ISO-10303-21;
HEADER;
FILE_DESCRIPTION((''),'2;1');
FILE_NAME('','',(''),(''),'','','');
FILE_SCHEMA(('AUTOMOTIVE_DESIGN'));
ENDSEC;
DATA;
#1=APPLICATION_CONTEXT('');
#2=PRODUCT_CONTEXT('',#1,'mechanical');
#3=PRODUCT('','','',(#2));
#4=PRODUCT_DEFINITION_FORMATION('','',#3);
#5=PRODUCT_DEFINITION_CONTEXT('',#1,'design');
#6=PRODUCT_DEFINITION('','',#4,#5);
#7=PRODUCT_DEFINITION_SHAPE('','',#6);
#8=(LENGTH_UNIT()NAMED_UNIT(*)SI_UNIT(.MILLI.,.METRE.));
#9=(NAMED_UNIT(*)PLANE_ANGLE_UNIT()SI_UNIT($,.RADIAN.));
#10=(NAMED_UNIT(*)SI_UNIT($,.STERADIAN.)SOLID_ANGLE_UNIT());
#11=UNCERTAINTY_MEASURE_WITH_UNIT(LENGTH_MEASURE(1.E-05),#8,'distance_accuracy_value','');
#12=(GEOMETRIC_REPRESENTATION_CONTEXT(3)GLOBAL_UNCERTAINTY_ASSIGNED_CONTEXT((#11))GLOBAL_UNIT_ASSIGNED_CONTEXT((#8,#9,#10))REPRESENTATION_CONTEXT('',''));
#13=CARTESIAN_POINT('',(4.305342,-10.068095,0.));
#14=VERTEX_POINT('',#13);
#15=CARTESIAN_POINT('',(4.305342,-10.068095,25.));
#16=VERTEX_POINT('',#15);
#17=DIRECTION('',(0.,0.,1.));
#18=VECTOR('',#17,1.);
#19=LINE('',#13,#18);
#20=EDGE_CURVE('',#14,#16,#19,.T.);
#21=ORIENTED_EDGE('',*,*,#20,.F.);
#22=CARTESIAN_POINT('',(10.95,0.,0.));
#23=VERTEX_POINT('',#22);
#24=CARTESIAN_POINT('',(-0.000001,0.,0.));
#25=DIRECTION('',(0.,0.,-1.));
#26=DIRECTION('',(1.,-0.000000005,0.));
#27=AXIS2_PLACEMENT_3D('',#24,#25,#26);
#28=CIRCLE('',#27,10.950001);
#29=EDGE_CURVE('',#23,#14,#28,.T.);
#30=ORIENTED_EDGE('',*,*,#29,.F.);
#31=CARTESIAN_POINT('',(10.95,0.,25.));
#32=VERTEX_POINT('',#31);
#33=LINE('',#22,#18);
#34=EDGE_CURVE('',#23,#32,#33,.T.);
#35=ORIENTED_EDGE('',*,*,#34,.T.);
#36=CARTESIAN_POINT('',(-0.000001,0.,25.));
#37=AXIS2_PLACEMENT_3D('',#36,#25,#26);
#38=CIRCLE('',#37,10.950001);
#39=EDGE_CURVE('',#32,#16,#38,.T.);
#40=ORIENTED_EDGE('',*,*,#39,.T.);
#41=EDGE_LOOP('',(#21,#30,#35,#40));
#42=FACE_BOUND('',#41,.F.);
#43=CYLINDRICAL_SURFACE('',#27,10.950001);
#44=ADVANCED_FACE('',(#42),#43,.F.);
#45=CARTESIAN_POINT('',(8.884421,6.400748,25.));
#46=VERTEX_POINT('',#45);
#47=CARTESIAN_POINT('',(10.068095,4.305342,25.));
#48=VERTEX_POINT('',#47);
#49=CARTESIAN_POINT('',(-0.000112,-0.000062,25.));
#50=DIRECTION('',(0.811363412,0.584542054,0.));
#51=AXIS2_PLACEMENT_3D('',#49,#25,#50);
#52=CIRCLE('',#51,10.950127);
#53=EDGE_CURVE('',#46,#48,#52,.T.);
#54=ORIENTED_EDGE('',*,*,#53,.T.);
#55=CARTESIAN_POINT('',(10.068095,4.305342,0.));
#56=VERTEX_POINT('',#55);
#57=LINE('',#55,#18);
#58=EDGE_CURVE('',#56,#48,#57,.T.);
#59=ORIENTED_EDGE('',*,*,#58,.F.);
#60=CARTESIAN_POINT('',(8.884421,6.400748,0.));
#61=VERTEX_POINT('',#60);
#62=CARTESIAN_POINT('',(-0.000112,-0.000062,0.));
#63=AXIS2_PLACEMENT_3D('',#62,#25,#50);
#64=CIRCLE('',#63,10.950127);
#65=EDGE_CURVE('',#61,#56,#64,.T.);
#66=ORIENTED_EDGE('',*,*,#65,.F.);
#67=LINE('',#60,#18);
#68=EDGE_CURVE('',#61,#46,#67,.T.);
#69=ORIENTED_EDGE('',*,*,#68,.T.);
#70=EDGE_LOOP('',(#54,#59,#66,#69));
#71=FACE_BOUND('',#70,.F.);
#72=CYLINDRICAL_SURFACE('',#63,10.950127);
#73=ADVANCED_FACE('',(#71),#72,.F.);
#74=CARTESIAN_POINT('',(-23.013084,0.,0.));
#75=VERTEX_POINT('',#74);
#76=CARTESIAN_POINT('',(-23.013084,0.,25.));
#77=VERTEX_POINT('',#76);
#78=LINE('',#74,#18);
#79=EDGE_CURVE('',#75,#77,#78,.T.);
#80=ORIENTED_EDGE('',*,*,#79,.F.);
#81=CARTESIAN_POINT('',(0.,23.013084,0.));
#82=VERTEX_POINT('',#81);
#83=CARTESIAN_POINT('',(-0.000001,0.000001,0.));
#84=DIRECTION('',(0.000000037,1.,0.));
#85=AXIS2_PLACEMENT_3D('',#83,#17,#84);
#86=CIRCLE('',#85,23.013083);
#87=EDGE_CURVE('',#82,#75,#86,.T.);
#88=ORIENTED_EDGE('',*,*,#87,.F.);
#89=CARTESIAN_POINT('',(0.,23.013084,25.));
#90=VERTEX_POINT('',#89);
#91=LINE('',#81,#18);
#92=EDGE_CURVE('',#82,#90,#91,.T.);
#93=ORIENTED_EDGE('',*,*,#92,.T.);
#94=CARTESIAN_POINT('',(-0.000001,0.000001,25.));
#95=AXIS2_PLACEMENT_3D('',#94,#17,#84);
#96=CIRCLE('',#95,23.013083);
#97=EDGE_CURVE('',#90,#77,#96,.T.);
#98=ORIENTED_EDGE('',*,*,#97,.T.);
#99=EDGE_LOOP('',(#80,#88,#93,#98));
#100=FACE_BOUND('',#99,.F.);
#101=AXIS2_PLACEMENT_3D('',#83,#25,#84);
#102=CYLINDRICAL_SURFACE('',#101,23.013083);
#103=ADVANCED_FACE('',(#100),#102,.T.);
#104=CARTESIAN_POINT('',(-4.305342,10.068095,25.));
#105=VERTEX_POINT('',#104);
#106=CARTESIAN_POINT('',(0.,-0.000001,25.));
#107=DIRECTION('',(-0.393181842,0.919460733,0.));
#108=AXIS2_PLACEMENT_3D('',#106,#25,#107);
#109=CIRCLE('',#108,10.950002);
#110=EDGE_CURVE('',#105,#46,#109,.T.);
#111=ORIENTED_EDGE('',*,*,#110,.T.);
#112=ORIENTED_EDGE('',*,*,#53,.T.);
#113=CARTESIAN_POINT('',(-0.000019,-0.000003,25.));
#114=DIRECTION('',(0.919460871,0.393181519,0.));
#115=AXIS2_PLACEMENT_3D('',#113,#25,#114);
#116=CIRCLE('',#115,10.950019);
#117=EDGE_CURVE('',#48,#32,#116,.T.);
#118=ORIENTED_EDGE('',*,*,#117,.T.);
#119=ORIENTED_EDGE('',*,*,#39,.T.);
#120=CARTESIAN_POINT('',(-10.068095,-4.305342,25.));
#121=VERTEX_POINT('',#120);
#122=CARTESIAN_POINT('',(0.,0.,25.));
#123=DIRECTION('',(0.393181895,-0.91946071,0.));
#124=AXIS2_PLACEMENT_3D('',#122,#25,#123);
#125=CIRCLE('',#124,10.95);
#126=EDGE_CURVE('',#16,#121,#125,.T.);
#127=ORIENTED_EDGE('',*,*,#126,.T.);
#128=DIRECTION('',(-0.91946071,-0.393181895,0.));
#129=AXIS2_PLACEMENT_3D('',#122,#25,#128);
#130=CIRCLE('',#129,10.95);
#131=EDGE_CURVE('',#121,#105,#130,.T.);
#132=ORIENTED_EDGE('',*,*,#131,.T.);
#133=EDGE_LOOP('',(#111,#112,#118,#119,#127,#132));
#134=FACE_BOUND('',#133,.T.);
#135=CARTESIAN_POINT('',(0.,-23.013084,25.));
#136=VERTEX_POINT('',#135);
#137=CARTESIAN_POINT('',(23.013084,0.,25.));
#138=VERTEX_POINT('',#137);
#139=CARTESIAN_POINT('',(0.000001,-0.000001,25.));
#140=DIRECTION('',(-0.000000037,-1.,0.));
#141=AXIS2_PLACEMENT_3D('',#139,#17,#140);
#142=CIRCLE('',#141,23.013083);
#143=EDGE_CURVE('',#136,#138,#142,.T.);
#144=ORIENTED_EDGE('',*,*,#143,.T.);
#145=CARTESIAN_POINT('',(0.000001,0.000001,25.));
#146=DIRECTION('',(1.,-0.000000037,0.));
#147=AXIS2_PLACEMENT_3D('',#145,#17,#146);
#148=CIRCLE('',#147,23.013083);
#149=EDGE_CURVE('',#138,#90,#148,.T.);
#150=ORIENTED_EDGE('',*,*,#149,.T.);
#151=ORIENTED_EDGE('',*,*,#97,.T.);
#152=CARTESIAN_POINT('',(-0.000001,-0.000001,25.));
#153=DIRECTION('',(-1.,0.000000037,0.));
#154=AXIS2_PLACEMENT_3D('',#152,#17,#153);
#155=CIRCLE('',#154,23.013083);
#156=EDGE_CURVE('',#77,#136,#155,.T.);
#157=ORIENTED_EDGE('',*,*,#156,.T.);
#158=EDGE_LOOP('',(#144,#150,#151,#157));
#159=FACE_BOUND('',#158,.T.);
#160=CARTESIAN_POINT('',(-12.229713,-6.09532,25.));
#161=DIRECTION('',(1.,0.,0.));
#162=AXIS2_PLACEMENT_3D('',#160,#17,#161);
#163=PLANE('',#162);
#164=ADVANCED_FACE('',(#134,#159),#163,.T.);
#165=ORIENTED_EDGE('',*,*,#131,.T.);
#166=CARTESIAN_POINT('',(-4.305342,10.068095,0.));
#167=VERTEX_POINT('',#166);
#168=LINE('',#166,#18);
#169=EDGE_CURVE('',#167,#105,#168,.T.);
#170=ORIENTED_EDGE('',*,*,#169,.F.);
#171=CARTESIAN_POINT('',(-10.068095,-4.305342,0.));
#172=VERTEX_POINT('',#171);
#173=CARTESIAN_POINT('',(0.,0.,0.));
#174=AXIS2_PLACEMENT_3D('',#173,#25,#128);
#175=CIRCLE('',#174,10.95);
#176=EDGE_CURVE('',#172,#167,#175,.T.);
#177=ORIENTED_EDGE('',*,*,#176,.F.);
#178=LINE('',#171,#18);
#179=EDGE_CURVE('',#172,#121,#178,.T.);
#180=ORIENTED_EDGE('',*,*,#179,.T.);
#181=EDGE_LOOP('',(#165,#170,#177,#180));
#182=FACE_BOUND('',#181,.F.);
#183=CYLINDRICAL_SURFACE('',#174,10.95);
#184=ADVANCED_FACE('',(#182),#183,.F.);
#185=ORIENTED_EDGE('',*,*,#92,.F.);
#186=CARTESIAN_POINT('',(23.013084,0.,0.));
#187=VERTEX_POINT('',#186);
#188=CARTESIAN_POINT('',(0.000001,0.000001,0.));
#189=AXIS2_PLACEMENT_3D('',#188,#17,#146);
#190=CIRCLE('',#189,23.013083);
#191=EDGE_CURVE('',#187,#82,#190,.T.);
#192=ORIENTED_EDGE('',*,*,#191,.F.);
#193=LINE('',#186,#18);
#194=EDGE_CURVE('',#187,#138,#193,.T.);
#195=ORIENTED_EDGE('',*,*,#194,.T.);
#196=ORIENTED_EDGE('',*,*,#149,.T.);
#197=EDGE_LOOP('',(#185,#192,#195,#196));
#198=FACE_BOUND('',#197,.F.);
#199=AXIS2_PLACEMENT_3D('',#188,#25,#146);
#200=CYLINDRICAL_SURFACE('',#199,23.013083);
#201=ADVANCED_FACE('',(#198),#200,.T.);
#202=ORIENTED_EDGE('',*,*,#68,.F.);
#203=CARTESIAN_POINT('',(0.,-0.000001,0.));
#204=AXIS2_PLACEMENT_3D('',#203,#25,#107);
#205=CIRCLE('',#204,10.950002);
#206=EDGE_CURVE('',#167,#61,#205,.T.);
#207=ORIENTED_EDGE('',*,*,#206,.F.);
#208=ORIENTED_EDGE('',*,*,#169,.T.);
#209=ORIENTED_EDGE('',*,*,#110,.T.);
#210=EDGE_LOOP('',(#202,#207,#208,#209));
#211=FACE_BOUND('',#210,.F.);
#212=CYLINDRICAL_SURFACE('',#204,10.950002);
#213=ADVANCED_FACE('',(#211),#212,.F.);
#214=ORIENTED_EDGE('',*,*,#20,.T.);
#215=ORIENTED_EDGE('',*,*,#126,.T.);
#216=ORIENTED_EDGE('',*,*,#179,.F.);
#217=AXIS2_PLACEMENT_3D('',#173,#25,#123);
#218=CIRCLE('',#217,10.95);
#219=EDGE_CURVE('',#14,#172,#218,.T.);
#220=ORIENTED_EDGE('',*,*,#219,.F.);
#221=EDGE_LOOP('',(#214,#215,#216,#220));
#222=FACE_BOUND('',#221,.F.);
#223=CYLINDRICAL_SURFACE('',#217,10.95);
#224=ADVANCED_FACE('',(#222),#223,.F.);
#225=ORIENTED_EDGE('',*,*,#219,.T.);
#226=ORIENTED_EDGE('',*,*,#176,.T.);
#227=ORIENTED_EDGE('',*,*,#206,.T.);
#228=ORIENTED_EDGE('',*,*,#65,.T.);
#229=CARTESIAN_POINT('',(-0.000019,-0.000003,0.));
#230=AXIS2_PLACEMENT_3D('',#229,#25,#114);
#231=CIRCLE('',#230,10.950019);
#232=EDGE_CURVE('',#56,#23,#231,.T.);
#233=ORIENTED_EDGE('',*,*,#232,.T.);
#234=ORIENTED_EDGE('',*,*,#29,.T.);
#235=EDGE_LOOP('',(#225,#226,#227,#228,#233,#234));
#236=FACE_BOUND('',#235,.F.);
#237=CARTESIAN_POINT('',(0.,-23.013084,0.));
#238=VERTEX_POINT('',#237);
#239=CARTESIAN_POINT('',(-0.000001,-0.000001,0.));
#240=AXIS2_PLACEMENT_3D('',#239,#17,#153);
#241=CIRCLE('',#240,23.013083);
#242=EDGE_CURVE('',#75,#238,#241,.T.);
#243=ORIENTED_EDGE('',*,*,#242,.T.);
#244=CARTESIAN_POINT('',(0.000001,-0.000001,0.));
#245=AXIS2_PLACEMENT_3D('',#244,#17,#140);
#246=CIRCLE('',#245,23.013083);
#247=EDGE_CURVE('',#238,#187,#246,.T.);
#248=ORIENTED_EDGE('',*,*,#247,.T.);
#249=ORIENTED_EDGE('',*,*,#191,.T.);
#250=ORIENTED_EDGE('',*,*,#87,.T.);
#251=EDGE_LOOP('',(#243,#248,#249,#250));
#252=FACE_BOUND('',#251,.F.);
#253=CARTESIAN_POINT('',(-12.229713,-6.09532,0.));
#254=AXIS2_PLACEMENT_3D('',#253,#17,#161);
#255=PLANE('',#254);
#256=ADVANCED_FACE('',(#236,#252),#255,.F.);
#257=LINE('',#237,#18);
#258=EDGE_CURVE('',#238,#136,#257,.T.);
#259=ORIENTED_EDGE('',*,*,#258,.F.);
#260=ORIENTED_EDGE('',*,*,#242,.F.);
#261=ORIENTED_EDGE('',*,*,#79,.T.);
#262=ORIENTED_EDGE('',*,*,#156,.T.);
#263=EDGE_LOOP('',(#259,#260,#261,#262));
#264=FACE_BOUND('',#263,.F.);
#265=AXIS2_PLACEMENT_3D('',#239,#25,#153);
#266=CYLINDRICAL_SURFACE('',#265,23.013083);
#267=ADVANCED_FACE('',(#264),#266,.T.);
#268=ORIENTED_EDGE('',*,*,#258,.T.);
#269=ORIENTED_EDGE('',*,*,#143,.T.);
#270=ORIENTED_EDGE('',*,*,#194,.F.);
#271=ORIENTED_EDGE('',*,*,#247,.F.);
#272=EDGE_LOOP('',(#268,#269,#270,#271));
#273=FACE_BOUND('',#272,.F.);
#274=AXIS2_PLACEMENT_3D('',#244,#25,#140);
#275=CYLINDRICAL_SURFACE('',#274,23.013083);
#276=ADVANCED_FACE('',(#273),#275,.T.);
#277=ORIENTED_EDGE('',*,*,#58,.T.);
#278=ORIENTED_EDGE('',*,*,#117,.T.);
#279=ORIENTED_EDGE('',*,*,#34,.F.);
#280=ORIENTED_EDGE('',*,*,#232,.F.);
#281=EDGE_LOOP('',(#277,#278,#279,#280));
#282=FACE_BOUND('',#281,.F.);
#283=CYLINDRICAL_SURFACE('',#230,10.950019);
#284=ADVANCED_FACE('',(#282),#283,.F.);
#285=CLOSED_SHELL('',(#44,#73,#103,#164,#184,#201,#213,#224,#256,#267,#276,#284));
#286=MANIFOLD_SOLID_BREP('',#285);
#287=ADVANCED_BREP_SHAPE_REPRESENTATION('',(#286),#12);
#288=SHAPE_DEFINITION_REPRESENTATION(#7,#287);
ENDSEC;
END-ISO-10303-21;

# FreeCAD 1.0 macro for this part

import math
import FreeCAD as App
import Part
import Sketcher
from FreeCAD import Vector
Q = App.Units.Quantity

doc = App.newDocument("Part")
body = doc.addObject("PartDesign::Body", "Body")

# Sketch on XY plane
sketch1 = body.newObject("Sketcher::SketchObject", "Sketch")
sketch1.AttachmentSupport = (doc.getObject("XY_Plane"), [""])
sketch1.MapMode = "FlatFace"
sketch1.addGeometry(Part.ArcOfCircle(Part.Circle(Vector(-0.000001, 0.000001, 0), Vector(0, 0, 1), 23.013083), math.radians(89.999998), math.radians(180.000002)), False)
sketch1.addGeometry(Part.ArcOfCircle(Part.Circle(Vector(-0.000001, -0.000001, 0), Vector(0, 0, 1), 23.013083), math.radians(179.999998), math.radians(270.000002)), False)
sketch1.addGeometry(Part.ArcOfCircle(Part.Circle(Vector(0.000001, -0.000001, 0), Vector(0, 0, 1), 23.013083), math.radians(-90.000002), math.radians(0.000002)), False)
sketch1.addGeometry(Part.ArcOfCircle(Part.Circle(Vector(0.000001, 0.000001, 0), Vector(0, 0, 1), 23.013083), math.radians(-0.000002), math.radians(90.000002)), False)
sketch1.addGeometry(Part.ArcOfCircle(Part.Circle(Vector(0, 0, 0), Vector(0, 0, 1), 10.95), math.radians(113.152633), math.radians(203.152632)), False)
sketch1.addGeometry(Part.ArcOfCircle(Part.Circle(Vector(0, -0.000001, 0), Vector(0, 0, 1), 10.950002), math.radians(35.770729), math.radians(113.152628)), False)
sketch1.addGeometry(Part.ArcOfCircle(Part.Circle(Vector(-0.000112, -0.000062, 0), Vector(0, 0, 1), 10.950127), math.radians(23.152701), math.radians(35.770645)), False)
sketch1.addGeometry(Part.ArcOfCircle(Part.Circle(Vector(-0.000019, -0.000003, 0), Vector(0, 0, 1), 10.950019), math.radians(0.000016), math.radians(23.152608)), False)
sketch1.addGeometry(Part.ArcOfCircle(Part.Circle(Vector(-0.000001, 0, 0), Vector(0, 0, 1), 10.950001), math.radians(-66.847365), math.radians(0)), False)
sketch1.addGeometry(Part.ArcOfCircle(Part.Circle(Vector(0, 0, 0), Vector(0, 0, 1), 10.95), math.radians(-156.847367), math.radians(-66.847368)), False)
sketch1.addConstraint(Sketcher.Constraint("Coincident", 0, 2, 1, 1))
sketch1.addConstraint(Sketcher.Constraint("Coincident", 1, 2, 2, 1))
sketch1.addConstraint(Sketcher.Constraint("Coincident", 2, 2, 3, 1))
sketch1.addConstraint(Sketcher.Constraint("Coincident", 3, 2, 0, 1))
sketch1.addConstraint(Sketcher.Constraint("Coincident", 4, 1, 5, 2))
sketch1.addConstraint(Sketcher.Constraint("Coincident", 5, 1, 6, 2))
sketch1.addConstraint(Sketcher.Constraint("Coincident", 6, 1, 7, 2))
sketch1.addConstraint(Sketcher.Constraint("Coincident", 7, 1, 8, 2))
sketch1.addConstraint(Sketcher.Constraint("Coincident", 8, 1, 9, 2))
sketch1.addConstraint(Sketcher.Constraint("Coincident", 9, 1, 4, 2))
sketch1.addConstraint(Sketcher.Constraint("Coincident", 0, 3, -1, 1))
sketch1.addConstraint(Sketcher.Constraint("Coincident", 1, 3, -1, 1))
sketch1.addConstraint(Sketcher.Constraint("Coincident", 2, 3, -1, 1))
sketch1.addConstraint(Sketcher.Constraint("Coincident", 4, 3, -1, 1))
sketch1.addConstraint(Sketcher.Constraint("Coincident", 5, 3, -1, 1))
sketch1.addConstraint(Sketcher.Constraint("Coincident", 8, 3, -1, 1))
sketch1.addConstraint(Sketcher.Constraint("Coincident", 9, 3, -1, 1))
sketch1.addConstraint(Sketcher.Constraint("PointOnObject", 0, 2, -1))
sketch1.addConstraint(Sketcher.Constraint("PointOnObject", 1, 2, -2))
sketch1.addConstraint(Sketcher.Constraint("PointOnObject", 2, 2, -1))
sketch1.addConstraint(Sketcher.Constraint("PointOnObject", 3, 2, -2))
sketch1.addConstraint(Sketcher.Constraint("PointOnObject", 7, 1, -1))
sketch1.addConstraint(Sketcher.Constraint("Radius", 4, Q("10.95 mm")))
sketch1.addConstraint(Sketcher.Constraint("Radius", 7, Q("10.950019 mm")))
sketch1.addConstraint(Sketcher.Constraint("DistanceX", 3, 3, 7, 1, Q("10.949999 mm")))
sketch1.addConstraint(Sketcher.Constraint("Radius", 0, Q("23.013083 mm")))
sketch1.addConstraint(Sketcher.Constraint("Radius", 6, Q("10.950127 mm")))
sketch1.addConstraint(Sketcher.Constraint("DistanceY", 7, 3, 4, 1, Q("10.068098 mm")))
sketch1.addConstraint(Sketcher.Constraint("DistanceX", 6, 3, -1, 1, Q("0.000112 mm")))
sketch1.addConstraint(Sketcher.Constraint("DistanceX", -1, 1, 5, 1, Q("8.884421 mm")))
sketch1.addConstraint(Sketcher.Constraint("DistanceY", -1, 1, 6, 1, Q("4.305342 mm")))
sketch1.addConstraint(Sketcher.Constraint("DistanceX", 2, 3, 8, 1, Q("4.305341 mm")))
sketch1.addConstraint(Sketcher.Constraint("DistanceY", 9, 1, 6, 3, Q("4.30528 mm")))
pad1 = body.newObject("PartDesign::Pad", "Pad")
pad1.Profile = sketch1
pad1.Length = 25

doc.recompute()
